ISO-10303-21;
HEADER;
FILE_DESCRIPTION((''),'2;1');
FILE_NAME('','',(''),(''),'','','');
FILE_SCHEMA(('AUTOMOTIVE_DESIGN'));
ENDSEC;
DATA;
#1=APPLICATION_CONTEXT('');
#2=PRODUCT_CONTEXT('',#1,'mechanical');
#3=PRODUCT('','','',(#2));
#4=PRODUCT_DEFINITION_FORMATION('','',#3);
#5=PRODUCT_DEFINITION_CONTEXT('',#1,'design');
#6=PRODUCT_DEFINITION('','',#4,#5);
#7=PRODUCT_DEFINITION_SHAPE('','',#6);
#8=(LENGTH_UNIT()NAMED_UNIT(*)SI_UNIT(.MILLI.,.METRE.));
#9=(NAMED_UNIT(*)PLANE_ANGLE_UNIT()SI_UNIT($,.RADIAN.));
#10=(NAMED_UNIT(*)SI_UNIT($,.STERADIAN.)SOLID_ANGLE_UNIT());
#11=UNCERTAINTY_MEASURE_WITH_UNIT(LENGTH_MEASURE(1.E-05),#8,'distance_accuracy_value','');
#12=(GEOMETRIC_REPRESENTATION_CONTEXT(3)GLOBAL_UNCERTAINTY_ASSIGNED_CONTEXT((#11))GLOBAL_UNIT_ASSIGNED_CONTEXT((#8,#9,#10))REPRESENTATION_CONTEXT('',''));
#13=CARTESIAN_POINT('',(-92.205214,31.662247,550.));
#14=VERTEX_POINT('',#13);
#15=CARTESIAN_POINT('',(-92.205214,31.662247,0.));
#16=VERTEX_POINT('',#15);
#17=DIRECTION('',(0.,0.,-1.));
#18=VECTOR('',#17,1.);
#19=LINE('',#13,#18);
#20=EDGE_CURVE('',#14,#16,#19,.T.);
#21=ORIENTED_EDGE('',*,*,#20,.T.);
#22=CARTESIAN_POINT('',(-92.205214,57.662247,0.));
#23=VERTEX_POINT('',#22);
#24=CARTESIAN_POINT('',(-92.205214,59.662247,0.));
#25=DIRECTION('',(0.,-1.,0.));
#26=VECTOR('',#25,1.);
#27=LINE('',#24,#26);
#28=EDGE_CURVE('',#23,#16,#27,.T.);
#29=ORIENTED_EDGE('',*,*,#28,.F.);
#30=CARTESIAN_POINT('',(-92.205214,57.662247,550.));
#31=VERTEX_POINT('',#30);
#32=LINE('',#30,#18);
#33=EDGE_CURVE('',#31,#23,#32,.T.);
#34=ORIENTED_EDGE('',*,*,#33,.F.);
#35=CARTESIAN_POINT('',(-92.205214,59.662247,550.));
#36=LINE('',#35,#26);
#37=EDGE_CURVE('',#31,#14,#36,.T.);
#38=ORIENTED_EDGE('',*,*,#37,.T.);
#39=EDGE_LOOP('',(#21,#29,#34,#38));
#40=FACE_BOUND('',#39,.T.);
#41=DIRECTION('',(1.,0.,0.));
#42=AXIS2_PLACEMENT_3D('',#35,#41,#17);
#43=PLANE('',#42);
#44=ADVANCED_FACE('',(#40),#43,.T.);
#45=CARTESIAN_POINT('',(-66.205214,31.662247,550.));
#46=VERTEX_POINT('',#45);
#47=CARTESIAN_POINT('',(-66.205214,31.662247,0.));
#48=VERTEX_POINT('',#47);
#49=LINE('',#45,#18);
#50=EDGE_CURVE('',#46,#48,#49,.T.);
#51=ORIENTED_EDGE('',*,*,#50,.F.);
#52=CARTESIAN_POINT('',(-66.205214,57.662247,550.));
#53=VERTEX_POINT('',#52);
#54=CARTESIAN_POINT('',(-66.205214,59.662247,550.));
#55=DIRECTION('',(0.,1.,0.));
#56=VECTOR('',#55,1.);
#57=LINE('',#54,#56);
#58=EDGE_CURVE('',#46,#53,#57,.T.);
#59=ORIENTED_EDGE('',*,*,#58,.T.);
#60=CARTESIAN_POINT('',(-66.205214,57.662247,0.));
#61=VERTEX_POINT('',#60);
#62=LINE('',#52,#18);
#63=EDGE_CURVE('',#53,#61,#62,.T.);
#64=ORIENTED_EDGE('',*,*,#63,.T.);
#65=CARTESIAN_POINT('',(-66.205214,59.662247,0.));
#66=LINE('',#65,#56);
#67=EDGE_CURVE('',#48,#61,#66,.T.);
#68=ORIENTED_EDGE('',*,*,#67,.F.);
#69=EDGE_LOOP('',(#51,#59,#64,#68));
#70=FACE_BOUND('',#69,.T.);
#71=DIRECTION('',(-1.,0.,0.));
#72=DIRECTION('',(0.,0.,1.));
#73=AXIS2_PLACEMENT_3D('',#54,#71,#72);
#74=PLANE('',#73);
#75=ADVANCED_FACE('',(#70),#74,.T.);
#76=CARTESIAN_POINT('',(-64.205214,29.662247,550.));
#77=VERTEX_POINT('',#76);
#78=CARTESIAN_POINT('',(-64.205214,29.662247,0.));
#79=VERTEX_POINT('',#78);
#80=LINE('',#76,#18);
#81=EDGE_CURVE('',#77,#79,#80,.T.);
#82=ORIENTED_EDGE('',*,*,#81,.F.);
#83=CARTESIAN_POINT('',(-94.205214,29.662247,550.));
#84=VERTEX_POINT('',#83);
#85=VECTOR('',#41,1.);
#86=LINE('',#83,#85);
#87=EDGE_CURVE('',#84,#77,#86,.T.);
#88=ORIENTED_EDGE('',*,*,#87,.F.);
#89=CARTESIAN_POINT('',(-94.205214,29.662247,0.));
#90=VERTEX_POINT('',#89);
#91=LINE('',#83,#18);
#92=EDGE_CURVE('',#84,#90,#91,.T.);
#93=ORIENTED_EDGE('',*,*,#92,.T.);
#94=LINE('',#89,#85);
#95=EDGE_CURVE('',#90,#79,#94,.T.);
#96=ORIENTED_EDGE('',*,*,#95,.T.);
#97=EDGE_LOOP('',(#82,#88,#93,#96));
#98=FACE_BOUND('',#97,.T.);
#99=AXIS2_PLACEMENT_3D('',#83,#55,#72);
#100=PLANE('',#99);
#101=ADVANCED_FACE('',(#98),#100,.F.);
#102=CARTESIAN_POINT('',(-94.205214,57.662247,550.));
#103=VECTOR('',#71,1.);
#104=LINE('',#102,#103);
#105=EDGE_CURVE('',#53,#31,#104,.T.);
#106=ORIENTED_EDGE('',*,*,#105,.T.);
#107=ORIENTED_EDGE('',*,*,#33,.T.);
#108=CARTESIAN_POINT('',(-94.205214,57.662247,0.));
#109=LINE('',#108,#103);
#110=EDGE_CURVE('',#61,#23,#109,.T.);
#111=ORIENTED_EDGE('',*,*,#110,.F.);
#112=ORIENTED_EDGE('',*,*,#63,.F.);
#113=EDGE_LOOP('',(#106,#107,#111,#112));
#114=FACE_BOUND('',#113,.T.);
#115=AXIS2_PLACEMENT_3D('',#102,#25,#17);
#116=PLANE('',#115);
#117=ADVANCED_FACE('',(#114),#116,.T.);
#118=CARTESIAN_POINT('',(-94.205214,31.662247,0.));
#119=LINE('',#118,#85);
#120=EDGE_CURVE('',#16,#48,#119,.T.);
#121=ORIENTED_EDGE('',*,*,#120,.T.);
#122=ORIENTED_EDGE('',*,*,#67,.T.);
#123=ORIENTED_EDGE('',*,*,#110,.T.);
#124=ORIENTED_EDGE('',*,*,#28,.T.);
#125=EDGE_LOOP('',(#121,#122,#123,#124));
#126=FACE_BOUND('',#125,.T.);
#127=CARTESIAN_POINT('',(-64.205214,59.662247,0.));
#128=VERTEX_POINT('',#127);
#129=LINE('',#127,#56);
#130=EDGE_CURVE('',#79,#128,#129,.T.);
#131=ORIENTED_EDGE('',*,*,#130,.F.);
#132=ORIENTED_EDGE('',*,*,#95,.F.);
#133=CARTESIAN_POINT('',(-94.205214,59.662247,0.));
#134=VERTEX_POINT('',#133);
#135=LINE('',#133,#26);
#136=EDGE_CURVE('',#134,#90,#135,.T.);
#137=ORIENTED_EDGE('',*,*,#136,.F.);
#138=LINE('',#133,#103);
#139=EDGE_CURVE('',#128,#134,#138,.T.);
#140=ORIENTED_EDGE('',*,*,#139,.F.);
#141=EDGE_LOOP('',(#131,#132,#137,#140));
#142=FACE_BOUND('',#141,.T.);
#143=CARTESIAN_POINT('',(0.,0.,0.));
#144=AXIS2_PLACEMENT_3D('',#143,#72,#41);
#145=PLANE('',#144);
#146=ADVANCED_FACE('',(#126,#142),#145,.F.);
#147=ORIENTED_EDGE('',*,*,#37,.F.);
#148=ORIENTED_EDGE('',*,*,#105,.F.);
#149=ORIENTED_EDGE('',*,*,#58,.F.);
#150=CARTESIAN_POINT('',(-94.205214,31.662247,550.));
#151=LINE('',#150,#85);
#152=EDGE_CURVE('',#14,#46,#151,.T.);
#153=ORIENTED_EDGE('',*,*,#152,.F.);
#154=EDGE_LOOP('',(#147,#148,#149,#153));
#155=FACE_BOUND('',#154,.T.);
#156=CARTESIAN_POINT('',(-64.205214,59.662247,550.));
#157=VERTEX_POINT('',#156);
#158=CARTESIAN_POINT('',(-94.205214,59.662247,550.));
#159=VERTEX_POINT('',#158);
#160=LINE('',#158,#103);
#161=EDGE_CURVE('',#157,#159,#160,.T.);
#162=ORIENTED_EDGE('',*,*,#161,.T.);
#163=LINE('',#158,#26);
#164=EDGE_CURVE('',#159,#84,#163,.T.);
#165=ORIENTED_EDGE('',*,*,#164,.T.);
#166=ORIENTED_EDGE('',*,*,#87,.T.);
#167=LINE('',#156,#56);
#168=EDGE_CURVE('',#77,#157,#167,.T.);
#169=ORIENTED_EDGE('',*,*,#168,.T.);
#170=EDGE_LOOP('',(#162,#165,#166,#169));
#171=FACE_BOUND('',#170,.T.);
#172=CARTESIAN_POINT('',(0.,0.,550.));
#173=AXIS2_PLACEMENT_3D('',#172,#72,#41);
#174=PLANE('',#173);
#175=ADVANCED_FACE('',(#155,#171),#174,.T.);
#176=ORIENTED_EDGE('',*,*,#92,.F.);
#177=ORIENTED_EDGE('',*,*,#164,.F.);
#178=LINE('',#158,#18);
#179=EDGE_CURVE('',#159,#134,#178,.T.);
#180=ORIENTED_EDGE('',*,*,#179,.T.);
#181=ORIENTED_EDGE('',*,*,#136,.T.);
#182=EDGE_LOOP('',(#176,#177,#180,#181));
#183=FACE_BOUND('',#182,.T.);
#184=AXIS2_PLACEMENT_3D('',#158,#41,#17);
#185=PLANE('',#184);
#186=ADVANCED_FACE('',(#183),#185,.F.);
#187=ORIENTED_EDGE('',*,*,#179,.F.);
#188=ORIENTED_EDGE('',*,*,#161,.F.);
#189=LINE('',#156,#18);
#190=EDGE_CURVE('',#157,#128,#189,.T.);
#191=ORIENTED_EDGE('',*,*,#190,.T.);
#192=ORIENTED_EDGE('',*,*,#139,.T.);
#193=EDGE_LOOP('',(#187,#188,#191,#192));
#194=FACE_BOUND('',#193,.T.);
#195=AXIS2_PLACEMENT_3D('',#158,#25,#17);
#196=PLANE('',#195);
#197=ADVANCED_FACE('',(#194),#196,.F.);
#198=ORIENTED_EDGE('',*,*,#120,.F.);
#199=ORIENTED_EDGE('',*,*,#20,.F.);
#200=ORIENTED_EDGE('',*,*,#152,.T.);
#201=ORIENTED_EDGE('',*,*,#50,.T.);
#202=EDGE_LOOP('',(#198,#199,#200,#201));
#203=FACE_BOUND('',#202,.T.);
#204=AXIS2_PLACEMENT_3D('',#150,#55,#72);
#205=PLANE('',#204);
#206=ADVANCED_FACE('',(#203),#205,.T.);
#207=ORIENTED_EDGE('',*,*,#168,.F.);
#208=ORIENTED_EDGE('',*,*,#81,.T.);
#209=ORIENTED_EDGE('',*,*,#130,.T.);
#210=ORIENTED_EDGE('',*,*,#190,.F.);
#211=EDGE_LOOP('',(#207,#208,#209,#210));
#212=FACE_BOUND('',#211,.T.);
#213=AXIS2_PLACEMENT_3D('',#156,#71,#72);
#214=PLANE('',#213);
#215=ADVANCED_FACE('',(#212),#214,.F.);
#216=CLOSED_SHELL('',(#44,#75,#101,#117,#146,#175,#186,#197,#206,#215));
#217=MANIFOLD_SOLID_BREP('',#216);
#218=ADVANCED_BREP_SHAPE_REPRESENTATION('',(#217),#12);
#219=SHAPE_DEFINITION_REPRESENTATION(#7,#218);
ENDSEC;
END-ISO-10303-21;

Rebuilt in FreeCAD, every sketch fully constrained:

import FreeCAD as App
import Part
import Sketcher

V = App.Vector
Q = App.Units.Quantity


def faces_at(feature, points):
    """Names of the faces that lie closest to the given points."""
    faces = feature.Shape.Faces
    near = lambda p: min(range(len(faces)), key=lambda i: faces[i].distToShape(Part.Vertex(*p))[0])
    return sorted({f"Face{near(p) + 1}" for p in points})

doc = App.newDocument("Part")
body = doc.addObject("PartDesign::Body", "Body")

# Sketch on XY plane
sketch1 = doc.addObject("Sketcher::SketchObject", "Sketch")
body.addObject(sketch1)
sketch1.AttachmentSupport = (doc.XY_Plane, [""])
sketch1.MapMode = "FlatFace"
sketch1.addGeometry([
    Part.LineSegment(V(-94.205214, 59.662247, 0), V(-94.205214, 29.662247, 0)),
    Part.LineSegment(V(-94.205214, 29.662247, 0), V(-64.205214, 29.662247, 0)),
    Part.LineSegment(V(-64.205214, 29.662247, 0), V(-64.205214, 59.662247, 0)),
    Part.LineSegment(V(-64.205214, 59.662247, 0), V(-94.205214, 59.662247, 0)),
], False)
sketch1.addConstraint([
    Sketcher.Constraint("Coincident", 0, 2, 1, 1),
    Sketcher.Constraint("Coincident", 1, 2, 2, 1),
    Sketcher.Constraint("Coincident", 2, 2, 3, 1),
    Sketcher.Constraint("Coincident", 3, 2, 0, 1),
    Sketcher.Constraint("Vertical", 0),
    Sketcher.Constraint("Horizontal", 1),
    Sketcher.Constraint("Vertical", 2),
    Sketcher.Constraint("Horizontal", 3),
    Sketcher.Constraint("Equal", 3, 0),
    Sketcher.Constraint("DistanceX", 1, 1, 1, 2, Q("30 mm")),
    Sketcher.Constraint("DistanceX", 0, 2, -1, 1, Q("94.205214 mm")),
    Sketcher.Constraint("DistanceY", -1, 1, 0, 2, Q("29.662247 mm")),
])
pad1 = doc.addObject("PartDesign::Pad", "Pad")
body.addObject(pad1)
pad1.Profile = sketch1
pad1.Length = 550
doc.recompute()

thickness = doc.addObject("PartDesign::Thickness", "Thickness")
body.addObject(thickness)
thickness.Base = (pad1, faces_at(pad1, [(-79.205, 44.662, 550), (-79.205, 44.662, 0)]))
thickness.Value = 2
thickness.Reversed = True
thickness.Join = "Intersection"

doc.recompute()
